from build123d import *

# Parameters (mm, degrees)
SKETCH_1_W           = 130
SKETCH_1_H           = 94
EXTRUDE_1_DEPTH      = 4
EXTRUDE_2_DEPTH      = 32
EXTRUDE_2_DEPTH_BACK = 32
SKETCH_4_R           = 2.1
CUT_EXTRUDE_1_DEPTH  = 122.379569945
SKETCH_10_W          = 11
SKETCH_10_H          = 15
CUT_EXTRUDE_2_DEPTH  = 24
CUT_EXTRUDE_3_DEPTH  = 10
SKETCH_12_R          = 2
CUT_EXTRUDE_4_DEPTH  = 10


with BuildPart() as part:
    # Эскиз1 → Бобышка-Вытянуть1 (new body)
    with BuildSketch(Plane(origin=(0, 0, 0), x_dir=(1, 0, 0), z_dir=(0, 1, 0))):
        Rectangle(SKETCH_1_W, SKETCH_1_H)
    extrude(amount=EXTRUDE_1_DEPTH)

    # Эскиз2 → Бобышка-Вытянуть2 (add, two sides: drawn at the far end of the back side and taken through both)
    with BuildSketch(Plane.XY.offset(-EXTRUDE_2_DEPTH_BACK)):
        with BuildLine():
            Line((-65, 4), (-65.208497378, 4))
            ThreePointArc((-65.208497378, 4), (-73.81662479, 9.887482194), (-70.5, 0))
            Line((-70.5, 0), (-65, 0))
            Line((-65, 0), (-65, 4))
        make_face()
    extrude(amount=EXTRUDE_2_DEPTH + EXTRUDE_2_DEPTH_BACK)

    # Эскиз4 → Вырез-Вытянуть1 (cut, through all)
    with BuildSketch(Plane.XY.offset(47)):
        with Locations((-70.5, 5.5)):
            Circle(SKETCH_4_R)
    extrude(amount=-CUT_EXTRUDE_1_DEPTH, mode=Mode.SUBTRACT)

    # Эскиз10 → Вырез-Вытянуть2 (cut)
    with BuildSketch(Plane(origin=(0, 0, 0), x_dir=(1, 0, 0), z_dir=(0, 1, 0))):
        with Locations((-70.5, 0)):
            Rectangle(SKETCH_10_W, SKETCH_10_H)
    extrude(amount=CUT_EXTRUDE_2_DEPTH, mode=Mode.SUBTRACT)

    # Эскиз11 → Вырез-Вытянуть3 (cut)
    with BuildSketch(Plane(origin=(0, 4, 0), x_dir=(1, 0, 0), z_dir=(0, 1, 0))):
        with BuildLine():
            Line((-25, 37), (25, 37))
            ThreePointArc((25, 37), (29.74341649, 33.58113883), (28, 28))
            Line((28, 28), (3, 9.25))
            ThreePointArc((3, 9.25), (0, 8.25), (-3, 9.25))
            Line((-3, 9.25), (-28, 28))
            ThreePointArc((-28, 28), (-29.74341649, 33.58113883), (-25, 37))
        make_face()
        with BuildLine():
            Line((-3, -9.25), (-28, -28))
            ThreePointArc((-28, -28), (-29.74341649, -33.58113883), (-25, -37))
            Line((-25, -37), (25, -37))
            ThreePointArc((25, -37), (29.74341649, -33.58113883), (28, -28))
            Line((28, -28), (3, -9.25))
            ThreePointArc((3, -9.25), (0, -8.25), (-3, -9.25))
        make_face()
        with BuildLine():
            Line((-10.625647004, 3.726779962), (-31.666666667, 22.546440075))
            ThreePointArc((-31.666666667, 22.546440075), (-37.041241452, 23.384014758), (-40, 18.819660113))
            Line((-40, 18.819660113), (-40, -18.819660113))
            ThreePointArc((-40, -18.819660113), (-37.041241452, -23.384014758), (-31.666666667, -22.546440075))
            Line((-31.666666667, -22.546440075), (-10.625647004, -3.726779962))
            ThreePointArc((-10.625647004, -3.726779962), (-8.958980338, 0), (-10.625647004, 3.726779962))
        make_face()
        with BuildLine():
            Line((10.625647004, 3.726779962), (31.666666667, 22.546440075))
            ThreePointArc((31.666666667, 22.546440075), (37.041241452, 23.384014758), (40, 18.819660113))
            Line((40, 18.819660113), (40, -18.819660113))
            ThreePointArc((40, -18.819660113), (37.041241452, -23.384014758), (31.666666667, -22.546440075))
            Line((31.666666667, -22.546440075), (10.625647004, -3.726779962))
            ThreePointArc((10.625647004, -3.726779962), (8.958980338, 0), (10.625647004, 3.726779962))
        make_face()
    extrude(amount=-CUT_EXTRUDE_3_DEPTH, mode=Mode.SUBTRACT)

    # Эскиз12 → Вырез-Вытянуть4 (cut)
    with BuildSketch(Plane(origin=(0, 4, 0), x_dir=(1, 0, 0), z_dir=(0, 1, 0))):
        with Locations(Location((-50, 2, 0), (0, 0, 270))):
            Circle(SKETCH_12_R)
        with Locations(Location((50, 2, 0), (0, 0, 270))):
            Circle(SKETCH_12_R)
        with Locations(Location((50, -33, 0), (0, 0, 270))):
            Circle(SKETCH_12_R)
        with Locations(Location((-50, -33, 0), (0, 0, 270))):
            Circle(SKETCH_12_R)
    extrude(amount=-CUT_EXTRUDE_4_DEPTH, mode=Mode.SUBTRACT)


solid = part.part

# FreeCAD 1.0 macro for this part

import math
import FreeCAD as App
import Part
import Sketcher

V = App.Vector
Q = App.Units.Quantity


def add_polygon(sketch, points):
    """Adds a closed chain of lines whose ends are joined by coincident constraints."""
    first, n = sketch.GeometryCount, len(points)
    for a, b in zip(points, points[1:] + points[:1]):
        sketch.addGeometry(Part.LineSegment(App.Vector(*a, 0), App.Vector(*b, 0)), False)
    for i in range(n):
        sketch.addConstraint(Sketcher.Constraint("Coincident", first + i, 2, first + (i + 1) % n, 1))

doc = App.newDocument("Part")
body = doc.addObject("PartDesign::Body", "Body")

sketch1 = body.newObject("Sketcher::SketchObject", "Sketch")
sketch1.AttachmentSupport = (doc.getObject("XZ_Plane"), [""])
sketch1.MapMode = "FlatFace"
add_polygon(sketch1, [(-65, -47), (-65, 47), (65, 47), (65, -47)])
sketch1.addConstraint(Sketcher.Constraint("Vertical", 0))
sketch1.addConstraint(Sketcher.Constraint("Horizontal", 1))
sketch1.addConstraint(Sketcher.Constraint("Vertical", 2))
sketch1.addConstraint(Sketcher.Constraint("Horizontal", 3))
sketch1.addConstraint(Sketcher.Constraint("Symmetric", 0, 2, 2, 2, -1, 1))
sketch1.addConstraint(Sketcher.Constraint("DistanceX", 1, 1, 1, 2, Q("130 mm")))
sketch1.addConstraint(Sketcher.Constraint("DistanceY", 0, 1, 0, 2, Q("94 mm")))
pad1 = body.newObject("PartDesign::Pad", "Pad")
pad1.Profile = sketch1
pad1.Length = 4
pad1.Reversed = True

sketch2 = body.newObject("Sketcher::SketchObject", "Sketch001")
sketch2.AttachmentSupport = (doc.getObject("XY_Plane"), [""])
sketch2.MapMode = "FlatFace"
sketch2.addGeometry(Part.LineSegment(V(-65, 4, 0), V(-65.21, 4, 0)), False)
sketch2.addGeometry(Part.ArcOfCircle(Part.Circle(V(-70.5, 5.5, 0), V(0, 0, 1), 5.5), math.radians(-16), math.radians(270)), False)
sketch2.addGeometry(Part.LineSegment(V(-70.5, 0, 0), V(-65, 0, 0)), False)
sketch2.addGeometry(Part.LineSegment(V(-65, 0, 0), V(-65, 4, 0)), False)
sketch2.addConstraint(Sketcher.Constraint("Coincident", 0, 2, 1, 1))
sketch2.addConstraint(Sketcher.Constraint("Tangent", 1, 2, 2, 1))
sketch2.addConstraint(Sketcher.Constraint("Coincident", 2, 2, 3, 1))
sketch2.addConstraint(Sketcher.Constraint("Coincident", 3, 2, 0, 1))
sketch2.addConstraint(Sketcher.Constraint("Horizontal", 0))
sketch2.addConstraint(Sketcher.Constraint("Horizontal", 2))
sketch2.addConstraint(Sketcher.Constraint("Vertical", 3))
sketch2.addConstraint(Sketcher.Constraint("PointOnObject", 1, 2, -1))
sketch2.addConstraint(Sketcher.Constraint("Radius", 1, Q("5.5 mm")))
sketch2.addConstraint(Sketcher.Constraint("DistanceY", 3, 1, 3, 2, Q("4 mm")))
sketch2.addConstraint(Sketcher.Constraint("DistanceX", 2, 1, 2, 2, Q("5.5 mm")))
sketch2.addConstraint(Sketcher.Constraint("DistanceX", 2, 2, -1, 1, Q("65 mm")))
pad2 = body.newObject("PartDesign::Pad", "Pad001")
pad2.Profile = sketch2
pad2.Type = "TwoLengths"
pad2.Length = 32
pad2.Length2 = 32

sketch3 = body.newObject("Sketcher::SketchObject", "Sketch002")
sketch3.AttachmentSupport = (doc.getObject("XY_Plane"), [""])
sketch3.MapMode = "FlatFace"
sketch3.AttachmentOffset = App.Placement(V(0, 0, 47), App.Rotation())
sketch3.addGeometry(Part.Circle(V(-70.5, 5.5, 0), V(0, 0, 1), 2.1), False)
sketch3.addConstraint(Sketcher.Constraint("Diameter", 0, Q("4.2 mm")))
sketch3.addConstraint(Sketcher.Constraint("DistanceX", 0, 3, -1, 1, Q("70.5 mm")))
sketch3.addConstraint(Sketcher.Constraint("DistanceY", -1, 1, 0, 3, Q("5.5 mm")))
pocket1 = body.newObject("PartDesign::Pocket", "Pocket")
pocket1.Profile = sketch3
pocket1.Type = "ThroughAll"

sketch4 = body.newObject("Sketcher::SketchObject", "Sketch003")
sketch4.AttachmentSupport = (doc.getObject("XZ_Plane"), [""])
sketch4.MapMode = "FlatFace"
add_polygon(sketch4, [(-76, -8), (-76, 8), (-65, 8), (-65, -8)])
sketch4.addConstraint(Sketcher.Constraint("Vertical", 0))
sketch4.addConstraint(Sketcher.Constraint("Horizontal", 1))
sketch4.addConstraint(Sketcher.Constraint("Vertical", 2))
sketch4.addConstraint(Sketcher.Constraint("Horizontal", 3))
sketch4.addConstraint(Sketcher.Constraint("DistanceX", 1, 1, 1, 2, Q("11 mm")))
sketch4.addConstraint(Sketcher.Constraint("DistanceY", 0, 1, 0, 2, Q("15 mm")))
sketch4.addConstraint(Sketcher.Constraint("DistanceX", 0, 2, -1, 1, Q("76 mm")))
sketch4.addConstraint(Sketcher.Constraint("DistanceY", -1, 1, 0, 2, Q("7.5 mm")))
pocket2 = body.newObject("PartDesign::Pocket", "Pocket001")
pocket2.Profile = sketch4
pocket2.Length = 24

sketch5 = body.newObject("Sketcher::SketchObject", "Sketch004")
sketch5.AttachmentSupport = (doc.getObject("XZ_Plane"), [""])
sketch5.MapMode = "FlatFace"
sketch5.AttachmentOffset = App.Placement(V(0, 0, -4), App.Rotation())
sketch5.addGeometry(Part.LineSegment(V(25, -37, 0), V(-25, -37, 0)), False)
sketch5.addGeometry(Part.ArcOfCircle(Part.Circle(V(-25, -32, 0), V(0, 0, 1), 5), math.radians(127), math.radians(270)), False)
sketch5.addGeometry(Part.LineSegment(V(-28, -28, 0), V(-3, -9, 0)), False)
sketch5.addGeometry(Part.ArcOfCircle(Part.Circle(V(0, -13, 0), V(0, 0, 1), 5), math.radians(53), math.radians(127)), False)
sketch5.addGeometry(Part.LineSegment(V(3, -9, 0), V(28, -28, 0)), False)
sketch5.addGeometry(Part.ArcOfCircle(Part.Circle(V(25, -32, 0), V(0, 0, 1), 5), math.radians(-90), math.radians(53)), False)
sketch5.addGeometry(Part.LineSegment(V(-3, 9, 0), V(-28, 28, 0)), False)
sketch5.addGeometry(Part.ArcOfCircle(Part.Circle(V(-25, 32, 0), V(0, 0, 1), 5), math.radians(90), math.radians(233)), False)
sketch5.addGeometry(Part.LineSegment(V(-25, 37, 0), V(25, 37, 0)), False)
sketch5.addGeometry(Part.ArcOfCircle(Part.Circle(V(25, 32, 0), V(0, 0, 1), 5), math.radians(-53), math.radians(90)), False)
sketch5.addGeometry(Part.LineSegment(V(28, 28, 0), V(3, 9, 0)), False)
sketch5.addGeometry(Part.ArcOfCircle(Part.Circle(V(0, 13, 0), V(0, 0, 1), 5), math.radians(-127), math.radians(-53)), False)
sketch5.addGeometry(Part.LineSegment(V(-11, -4, 0), V(-32, -23, 0)), False)
sketch5.addGeometry(Part.ArcOfCircle(Part.Circle(V(-35, -19, 0), V(0, 0, 1), 5), math.radians(-180), math.radians(-48)), False)
sketch5.addGeometry(Part.LineSegment(V(-40, -19, 0), V(-40, 19, 0)), False)
sketch5.addGeometry(Part.ArcOfCircle(Part.Circle(V(-35, 19, 0), V(0, 0, 1), 5), math.radians(48), math.radians(180)), False)
sketch5.addGeometry(Part.LineSegment(V(-32, 23, 0), V(-11, 4, 0)), False)
sketch5.addGeometry(Part.ArcOfCircle(Part.Circle(V(-14, 0, 0), V(0, 0, 1), 5), math.radians(-48), math.radians(48)), False)
sketch5.addGeometry(Part.LineSegment(V(32, -23, 0), V(11, -4, 0)), False)
sketch5.addGeometry(Part.ArcOfCircle(Part.Circle(V(14, 0, 0), V(0, 0, 1), 5), math.radians(132), math.radians(228)), False)
sketch5.addGeometry(Part.LineSegment(V(11, 4, 0), V(32, 23, 0)), False)
sketch5.addGeometry(Part.ArcOfCircle(Part.Circle(V(35, 19, 0), V(0, 0, 1), 5), math.radians(0), math.radians(132)), False)
sketch5.addGeometry(Part.LineSegment(V(40, 19, 0), V(40, -19, 0)), False)
sketch5.addGeometry(Part.ArcOfCircle(Part.Circle(V(35, -19, 0), V(0, 0, 1), 5), math.radians(-132), math.radians(0)), False)
sketch5.addConstraint(Sketcher.Constraint("Tangent", 0, 2, 1, 2))
sketch5.addConstraint(Sketcher.Constraint("Tangent", 1, 1, 2, 1))
sketch5.addConstraint(Sketcher.Constraint("Tangent", 2, 2, 3, 2))
sketch5.addConstraint(Sketcher.Constraint("Tangent", 3, 1, 4, 1))
sketch5.addConstraint(Sketcher.Constraint("Tangent", 4, 2, 5, 2))
sketch5.addConstraint(Sketcher.Constraint("Tangent", 5, 1, 0, 1))
sketch5.addConstraint(Sketcher.Constraint("Tangent", 6, 2, 7, 2))
sketch5.addConstraint(Sketcher.Constraint("Tangent", 7, 1, 8, 1))
sketch5.addConstraint(Sketcher.Constraint("Tangent", 8, 2, 9, 2))
sketch5.addConstraint(Sketcher.Constraint("Tangent", 9, 1, 10, 1))
sketch5.addConstraint(Sketcher.Constraint("Tangent", 10, 2, 11, 2))
sketch5.addConstraint(Sketcher.Constraint("Tangent", 11, 1, 6, 1))
sketch5.addConstraint(Sketcher.Constraint("Tangent", 12, 2, 13, 2))
sketch5.addConstraint(Sketcher.Constraint("Tangent", 13, 1, 14, 1))
sketch5.addConstraint(Sketcher.Constraint("Tangent", 14, 2, 15, 2))
sketch5.addConstraint(Sketcher.Constraint("Tangent", 15, 1, 16, 1))
sketch5.addConstraint(Sketcher.Constraint("Tangent", 16, 2, 17, 2))
sketch5.addConstraint(Sketcher.Constraint("Tangent", 17, 1, 12, 1))
sketch5.addConstraint(Sketcher.Constraint("Tangent", 18, 2, 19, 2))
sketch5.addConstraint(Sketcher.Constraint("Tangent", 19, 1, 20, 1))
sketch5.addConstraint(Sketcher.Constraint("Tangent", 20, 2, 21, 2))
sketch5.addConstraint(Sketcher.Constraint("Tangent", 21, 1, 22, 1))
sketch5.addConstraint(Sketcher.Constraint("Tangent", 22, 2, 23, 2))
sketch5.addConstraint(Sketcher.Constraint("Tangent", 23, 1, 18, 1))
sketch5.addConstraint(Sketcher.Constraint("Horizontal", 0))
sketch5.addConstraint(Sketcher.Constraint("Horizontal", 8))
sketch5.addConstraint(Sketcher.Constraint("Vertical", 14))
sketch5.addConstraint(Sketcher.Constraint("Vertical", 22))
sketch5.addConstraint(Sketcher.Constraint("Equal", 1, 3))
sketch5.addConstraint(Sketcher.Constraint("Equal", 3, 5))
sketch5.addConstraint(Sketcher.Constraint("Equal", 5, 7))
sketch5.addConstraint(Sketcher.Constraint("Equal", 7, 9))
sketch5.addConstraint(Sketcher.Constraint("Equal", 9, 11))
sketch5.addConstraint(Sketcher.Constraint("Equal", 11, 13))
sketch5.addConstraint(Sketcher.Constraint("Equal", 13, 15))
sketch5.addConstraint(Sketcher.Constraint("Equal", 15, 17))
sketch5.addConstraint(Sketcher.Constraint("Equal", 17, 19))
sketch5.addConstraint(Sketcher.Constraint("Equal", 19, 21))
sketch5.addConstraint(Sketcher.Constraint("Equal", 21, 23))
sketch5.addConstraint(Sketcher.Constraint("Symmetric", 5, 3, 7, 3, -1, 1))
sketch5.addConstraint(Sketcher.Constraint("Symmetric", 3, 3, 11, 3, -1, 1))
sketch5.addConstraint(Sketcher.Constraint("Symmetric", 17, 3, 19, 3, -1, 1))
sketch5.addConstraint(Sketcher.Constraint("Symmetric", 13, 3, 21, 3, -1, 1))
sketch5.addConstraint(Sketcher.Constraint("Symmetric", 2, 2, 3, 1, -2))
sketch5.addConstraint(Sketcher.Constraint("Symmetric", 17, 1, 18, 2, -2))
sketch5.addConstraint(Sketcher.Constraint("Parallel", 2, 10))
sketch5.addConstraint(Sketcher.Constraint("Parallel", 16, 18))
sketch5.addConstraint(Sketcher.Constraint("Radius", 1, Q("5 mm")))
sketch5.addConstraint(Sketcher.Constraint("DistanceX", 0, 2, 0, 1, Q("50 mm")))
sketch5.addConstraint(Sketcher.Constraint("DistanceY", 1, 3, -1, 1, Q("32 mm")))
sketch5.addConstraint(Sketcher.Constraint("DistanceX", 13, 3, -1, 1, Q("35 mm")))
sketch5.addConstraint(Sketcher.Constraint("DistanceX", 1, 1, -1, 1, Q("28 mm")))
sketch5.addConstraint(Sketcher.Constraint("DistanceY", 14, 1, 14, 2, Q("37.63932 mm")))
sketch5.addConstraint(Sketcher.Constraint("Distance", 12, Q("28.22949 mm")))
pocket3 = body.newObject("PartDesign::Pocket", "Pocket002")
pocket3.Profile = sketch5
pocket3.Length = 10
pocket3.Reversed = True

sketch6 = body.newObject("Sketcher::SketchObject", "Sketch005")
sketch6.AttachmentSupport = (doc.getObject("XZ_Plane"), [""])
sketch6.MapMode = "FlatFace"
sketch6.AttachmentOffset = App.Placement(V(0, 0, -4), App.Rotation())
sketch6.addGeometry(Part.Circle(V(-50, -2, 0), V(0, 0, 1), 2), False)
sketch6.addGeometry(Part.Circle(V(50, -2, 0), V(0, 0, 1), 2), False)
sketch6.addGeometry(Part.Circle(V(50, 33, 0), V(0, 0, 1), 2), False)
sketch6.addGeometry(Part.Circle(V(-50, 33, 0), V(0, 0, 1), 2), False)
sketch6.addConstraint(Sketcher.Constraint("Equal", 0, 1))
sketch6.addConstraint(Sketcher.Constraint("Equal", 1, 2))
sketch6.addConstraint(Sketcher.Constraint("Equal", 2, 3))
sketch6.addConstraint(Sketcher.Constraint("Symmetric", 0, 3, 1, 3, -2))
sketch6.addConstraint(Sketcher.Constraint("Symmetric", 2, 3, 3, 3, -2))
sketch6.addConstraint(Sketcher.Constraint("Vertical", 1, 3, 2, 3))
sketch6.addConstraint(Sketcher.Constraint("Diameter", 0, Q("4 mm")))
sketch6.addConstraint(Sketcher.Constraint("DistanceX", 0, 3, -1, 1, Q("50 mm")))
sketch6.addConstraint(Sketcher.Constraint("DistanceY", 0, 3, -1, 1, Q("2 mm")))
sketch6.addConstraint(Sketcher.Constraint("DistanceY", -1, 1, 2, 3, Q("33 mm")))
pocket4 = body.newObject("PartDesign::Pocket", "Pocket003")
pocket4.Profile = sketch6
pocket4.Length = 10
pocket4.Reversed = True

doc.recompute()
